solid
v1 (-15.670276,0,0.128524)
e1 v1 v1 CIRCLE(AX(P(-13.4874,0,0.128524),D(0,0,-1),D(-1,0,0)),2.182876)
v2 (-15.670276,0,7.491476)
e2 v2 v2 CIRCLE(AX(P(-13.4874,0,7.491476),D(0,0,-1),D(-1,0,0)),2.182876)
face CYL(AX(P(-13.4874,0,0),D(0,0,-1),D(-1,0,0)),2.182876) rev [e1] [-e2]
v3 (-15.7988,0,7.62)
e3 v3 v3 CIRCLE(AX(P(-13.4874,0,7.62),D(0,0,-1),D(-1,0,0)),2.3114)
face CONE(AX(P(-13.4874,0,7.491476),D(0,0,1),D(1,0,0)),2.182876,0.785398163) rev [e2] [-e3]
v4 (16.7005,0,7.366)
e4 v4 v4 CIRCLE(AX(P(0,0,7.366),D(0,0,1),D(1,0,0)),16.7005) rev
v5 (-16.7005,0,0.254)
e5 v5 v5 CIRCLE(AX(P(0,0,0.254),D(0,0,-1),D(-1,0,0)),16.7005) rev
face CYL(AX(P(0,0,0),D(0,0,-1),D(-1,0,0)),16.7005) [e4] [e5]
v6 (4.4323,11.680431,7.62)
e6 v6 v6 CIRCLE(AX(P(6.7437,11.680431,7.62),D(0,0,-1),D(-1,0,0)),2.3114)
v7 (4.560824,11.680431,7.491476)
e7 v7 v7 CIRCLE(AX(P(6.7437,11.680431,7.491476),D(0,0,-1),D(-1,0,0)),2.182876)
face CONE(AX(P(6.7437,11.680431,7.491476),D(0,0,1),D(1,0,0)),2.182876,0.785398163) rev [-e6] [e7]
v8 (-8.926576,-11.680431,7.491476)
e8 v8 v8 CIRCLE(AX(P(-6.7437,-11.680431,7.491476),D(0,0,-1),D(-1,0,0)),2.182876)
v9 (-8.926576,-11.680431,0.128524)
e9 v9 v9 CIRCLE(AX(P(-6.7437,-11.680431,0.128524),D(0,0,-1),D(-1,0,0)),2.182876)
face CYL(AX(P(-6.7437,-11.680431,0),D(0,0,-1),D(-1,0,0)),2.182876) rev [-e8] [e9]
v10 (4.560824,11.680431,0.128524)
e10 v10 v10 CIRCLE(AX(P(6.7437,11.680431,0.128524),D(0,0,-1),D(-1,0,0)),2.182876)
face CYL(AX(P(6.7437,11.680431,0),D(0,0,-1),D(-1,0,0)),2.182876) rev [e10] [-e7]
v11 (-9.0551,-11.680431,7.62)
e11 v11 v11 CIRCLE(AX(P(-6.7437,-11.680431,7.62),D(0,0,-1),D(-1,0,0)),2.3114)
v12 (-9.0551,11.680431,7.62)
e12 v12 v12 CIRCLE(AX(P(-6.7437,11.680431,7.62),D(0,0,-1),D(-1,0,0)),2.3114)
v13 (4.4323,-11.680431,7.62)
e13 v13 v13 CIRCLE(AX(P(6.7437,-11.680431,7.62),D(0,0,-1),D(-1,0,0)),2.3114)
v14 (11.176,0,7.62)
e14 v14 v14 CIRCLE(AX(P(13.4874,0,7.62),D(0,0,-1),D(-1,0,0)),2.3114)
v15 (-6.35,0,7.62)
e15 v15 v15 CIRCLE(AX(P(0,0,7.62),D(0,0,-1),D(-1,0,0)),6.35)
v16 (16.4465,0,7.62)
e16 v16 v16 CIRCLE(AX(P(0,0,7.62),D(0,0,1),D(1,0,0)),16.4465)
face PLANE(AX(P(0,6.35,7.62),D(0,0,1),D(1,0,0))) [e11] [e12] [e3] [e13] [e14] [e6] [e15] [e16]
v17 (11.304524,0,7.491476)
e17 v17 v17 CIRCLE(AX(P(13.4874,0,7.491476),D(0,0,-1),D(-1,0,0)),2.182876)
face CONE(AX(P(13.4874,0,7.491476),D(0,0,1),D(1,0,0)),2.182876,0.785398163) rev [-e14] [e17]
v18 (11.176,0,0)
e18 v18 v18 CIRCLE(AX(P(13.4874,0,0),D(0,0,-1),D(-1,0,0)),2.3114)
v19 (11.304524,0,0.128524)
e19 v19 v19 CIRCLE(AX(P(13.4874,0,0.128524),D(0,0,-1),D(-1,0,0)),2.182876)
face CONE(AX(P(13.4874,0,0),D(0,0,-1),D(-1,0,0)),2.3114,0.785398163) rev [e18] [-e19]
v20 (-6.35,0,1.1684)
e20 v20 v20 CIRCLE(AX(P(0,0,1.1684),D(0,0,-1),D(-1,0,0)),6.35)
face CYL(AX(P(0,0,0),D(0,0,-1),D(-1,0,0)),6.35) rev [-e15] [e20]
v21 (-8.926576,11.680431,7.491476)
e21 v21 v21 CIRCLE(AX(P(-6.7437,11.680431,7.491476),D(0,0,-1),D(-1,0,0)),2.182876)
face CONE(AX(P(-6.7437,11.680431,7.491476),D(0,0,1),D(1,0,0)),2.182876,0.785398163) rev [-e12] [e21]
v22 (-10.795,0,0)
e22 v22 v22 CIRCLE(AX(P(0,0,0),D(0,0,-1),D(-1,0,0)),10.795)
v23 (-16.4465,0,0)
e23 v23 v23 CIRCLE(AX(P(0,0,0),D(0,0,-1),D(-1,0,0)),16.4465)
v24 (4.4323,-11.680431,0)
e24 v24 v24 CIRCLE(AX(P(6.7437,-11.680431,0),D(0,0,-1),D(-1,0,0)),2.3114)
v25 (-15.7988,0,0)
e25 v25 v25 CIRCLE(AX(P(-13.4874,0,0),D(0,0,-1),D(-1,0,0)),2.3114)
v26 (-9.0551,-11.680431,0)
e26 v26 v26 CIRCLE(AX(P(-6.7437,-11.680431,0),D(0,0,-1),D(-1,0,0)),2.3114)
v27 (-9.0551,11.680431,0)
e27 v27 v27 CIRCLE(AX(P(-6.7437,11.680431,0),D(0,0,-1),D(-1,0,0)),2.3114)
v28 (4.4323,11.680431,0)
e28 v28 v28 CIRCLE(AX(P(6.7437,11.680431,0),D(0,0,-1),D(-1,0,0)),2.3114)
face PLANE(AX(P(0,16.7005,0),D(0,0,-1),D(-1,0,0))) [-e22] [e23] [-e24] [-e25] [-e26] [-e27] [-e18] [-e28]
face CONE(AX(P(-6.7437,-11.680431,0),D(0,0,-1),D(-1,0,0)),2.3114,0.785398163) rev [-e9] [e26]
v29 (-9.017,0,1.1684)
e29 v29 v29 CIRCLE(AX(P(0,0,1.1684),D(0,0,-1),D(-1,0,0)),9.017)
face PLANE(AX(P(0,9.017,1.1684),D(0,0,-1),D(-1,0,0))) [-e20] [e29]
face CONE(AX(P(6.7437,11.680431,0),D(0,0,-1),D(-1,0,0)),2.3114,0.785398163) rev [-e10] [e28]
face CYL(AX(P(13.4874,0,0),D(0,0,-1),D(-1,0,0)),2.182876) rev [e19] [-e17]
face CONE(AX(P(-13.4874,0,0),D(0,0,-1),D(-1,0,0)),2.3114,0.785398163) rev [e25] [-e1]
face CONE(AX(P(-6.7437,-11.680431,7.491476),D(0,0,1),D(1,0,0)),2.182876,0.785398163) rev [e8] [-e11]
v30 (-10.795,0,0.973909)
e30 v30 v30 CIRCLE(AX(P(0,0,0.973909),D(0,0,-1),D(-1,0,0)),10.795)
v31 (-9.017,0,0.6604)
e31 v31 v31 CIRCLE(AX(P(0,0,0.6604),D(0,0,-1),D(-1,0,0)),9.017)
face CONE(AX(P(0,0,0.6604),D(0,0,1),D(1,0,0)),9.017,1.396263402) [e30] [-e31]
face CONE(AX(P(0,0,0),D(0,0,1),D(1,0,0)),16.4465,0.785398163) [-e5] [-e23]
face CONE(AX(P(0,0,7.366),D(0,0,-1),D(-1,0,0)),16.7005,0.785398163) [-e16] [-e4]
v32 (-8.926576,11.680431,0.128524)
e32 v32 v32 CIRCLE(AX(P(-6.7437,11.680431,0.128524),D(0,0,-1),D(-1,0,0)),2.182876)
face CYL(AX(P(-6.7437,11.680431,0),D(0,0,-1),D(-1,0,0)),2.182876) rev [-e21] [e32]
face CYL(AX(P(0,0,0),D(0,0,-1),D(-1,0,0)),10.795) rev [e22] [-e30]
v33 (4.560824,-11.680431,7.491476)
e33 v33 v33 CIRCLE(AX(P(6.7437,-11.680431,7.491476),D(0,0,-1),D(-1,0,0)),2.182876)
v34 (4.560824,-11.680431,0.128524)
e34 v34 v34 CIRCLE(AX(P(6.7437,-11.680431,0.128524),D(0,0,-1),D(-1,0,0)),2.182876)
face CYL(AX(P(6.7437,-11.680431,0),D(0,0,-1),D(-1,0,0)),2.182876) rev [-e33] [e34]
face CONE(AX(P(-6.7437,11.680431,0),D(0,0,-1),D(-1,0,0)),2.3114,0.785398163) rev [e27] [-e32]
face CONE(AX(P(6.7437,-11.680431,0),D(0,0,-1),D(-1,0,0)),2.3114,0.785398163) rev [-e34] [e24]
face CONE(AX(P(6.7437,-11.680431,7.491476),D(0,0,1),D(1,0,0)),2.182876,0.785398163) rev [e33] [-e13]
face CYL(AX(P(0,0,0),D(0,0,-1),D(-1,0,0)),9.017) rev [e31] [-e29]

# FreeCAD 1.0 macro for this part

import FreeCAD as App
import Part
import Sketcher

V = App.Vector
Q = App.Units.Quantity


def edges_at(feature, points):
    """Names of the edges that pass closest to the given points."""
    edges = feature.Shape.Edges
    near = lambda p: min(range(len(edges)), key=lambda i: edges[i].distToShape(Part.Vertex(*p))[0])
    return sorted({f"Edge{near(p) + 1}" for p in points})

doc = App.newDocument("Part")
body = doc.addObject("PartDesign::Body", "Body")

# Sketch on YZ plane
sketch1 = body.newObject("Sketcher::SketchObject", "Sketch")
sketch1.AttachmentSupport = (doc.getObject("YZ_Plane"), [""])
sketch1.MapMode = "FlatFace"
sketch1.addGeometry(Part.LineSegment(V(10.8, 0, 0), V(16.7, 0, 0)), False)
sketch1.addGeometry(Part.LineSegment(V(16.7, 0, 0), V(16.7, 7.6, 0)), False)
sketch1.addGeometry(Part.LineSegment(V(16.7, 7.6, 0), V(6.3, 7.6, 0)), False)
sketch1.addGeometry(Part.LineSegment(V(6.3, 7.6, 0), V(6.3, 1.2, 0)), False)
sketch1.addGeometry(Part.LineSegment(V(6.3, 1.2, 0), V(9, 1.2, 0)), False)
sketch1.addGeometry(Part.LineSegment(V(9, 1.2, 0), V(9, 0.7, 0)), False)
sketch1.addGeometry(Part.LineSegment(V(9, 0.7, 0), V(10.8, 1, 0)), False)
sketch1.addGeometry(Part.LineSegment(V(10.8, 1, 0), V(10.8, 0, 0)), False)
sketch1.addConstraint(Sketcher.Constraint("Coincident", 0, 2, 1, 1))
sketch1.addConstraint(Sketcher.Constraint("Coincident", 1, 2, 2, 1))
sketch1.addConstraint(Sketcher.Constraint("Coincident", 2, 2, 3, 1))
sketch1.addConstraint(Sketcher.Constraint("Coincident", 3, 2, 4, 1))
sketch1.addConstraint(Sketcher.Constraint("Coincident", 4, 2, 5, 1))
sketch1.addConstraint(Sketcher.Constraint("Coincident", 5, 2, 6, 1))
sketch1.addConstraint(Sketcher.Constraint("Coincident", 6, 2, 7, 1))
sketch1.addConstraint(Sketcher.Constraint("Coincident", 7, 2, 0, 1))
sketch1.addConstraint(Sketcher.Constraint("Horizontal", 0))
sketch1.addConstraint(Sketcher.Constraint("Vertical", 1))
sketch1.addConstraint(Sketcher.Constraint("Horizontal", 2))
sketch1.addConstraint(Sketcher.Constraint("Vertical", 3))
sketch1.addConstraint(Sketcher.Constraint("Horizontal", 4))
sketch1.addConstraint(Sketcher.Constraint("Vertical", 5))
sketch1.addConstraint(Sketcher.Constraint("Vertical", 7))
sketch1.addConstraint(Sketcher.Constraint("PointOnObject", 0, 2, -1))
sketch1.addConstraint(Sketcher.Constraint("DistanceY", 1, 1, 1, 2, Q("0.3 in")))
sketch1.addConstraint(Sketcher.Constraint("Angle", 6, Q("10 deg")))
sketch1.addConstraint(Sketcher.Constraint("DistanceY", 5, 2, 5, 1, Q("0.02 in")))
sketch1.addConstraint(Sketcher.Constraint("DistanceX", 4, 1, 4, 2, Q("0.105 in")))
sketch1.addConstraint(Sketcher.Constraint("DistanceY", 3, 2, 3, 1, Q("0.254 in")))
sketch1.addConstraint(Sketcher.Constraint("DistanceX", -1, 1, 2, 2, Q("0.25 in")))
sketch1.addConstraint(Sketcher.Constraint("DistanceX", 4, 2, 6, 2, Q("0.07 in")))
sketch1.addConstraint(Sketcher.Constraint("DistanceX", 0, 1, 0, 2, Q("0.2325 in")))
revolution = body.newObject("PartDesign::Revolution", "Revolution")
revolution.Profile = sketch1
revolution.ReferenceAxis = (sketch1, ["V_Axis"])
revolution.Angle = 360
doc.recompute()

chamfer = body.newObject("PartDesign::Chamfer", "Chamfer")
chamfer.Base = (revolution, edges_at(revolution, [(16.701, 0, 0), (16.701, 0, 7.62)]))
chamfer.Size = Q("0.01 in")

# Sketch on YZ plane
sketch2 = body.newObject("Sketcher::SketchObject", "Sketch001")
sketch2.AttachmentSupport = (doc.getObject("YZ_Plane"), [""])
sketch2.MapMode = "FlatFace"
sketch2.AttachmentOffset = App.Placement(V(0, 0, 0.531 * 25.4), App.Rotation())
sketch2.addGeometry(Part.LineSegment(V(0, 7.62, 0), V(0, 0, 0)), False)
sketch2.addGeometry(Part.LineSegment(V(0, 0, 0), V(2.31, 0, 0)), False)
sketch2.addGeometry(Part.LineSegment(V(2.31, 0, 0), V(2.18, 0.13, 0)), False)
sketch2.addGeometry(Part.LineSegment(V(2.18, 0.13, 0), V(2.18, 7.49, 0)), False)
sketch2.addGeometry(Part.LineSegment(V(2.18, 7.49, 0), V(2.31, 7.62, 0)), False)
sketch2.addGeometry(Part.LineSegment(V(2.31, 7.62, 0), V(0, 7.62, 0)), False)
sketch2.addConstraint(Sketcher.Constraint("Coincident", 0, 2, 1, 1))
sketch2.addConstraint(Sketcher.Constraint("Coincident", 1, 2, 2, 1))
sketch2.addConstraint(Sketcher.Constraint("Coincident", 2, 2, 3, 1))
sketch2.addConstraint(Sketcher.Constraint("Coincident", 3, 2, 4, 1))
sketch2.addConstraint(Sketcher.Constraint("Coincident", 4, 2, 5, 1))
sketch2.addConstraint(Sketcher.Constraint("Coincident", 5, 2, 0, 1))
sketch2.addConstraint(Sketcher.Constraint("Vertical", 0))
sketch2.addConstraint(Sketcher.Constraint("Horizontal", 1))
sketch2.addConstraint(Sketcher.Constraint("Vertical", 3))
sketch2.addConstraint(Sketcher.Constraint("Horizontal", 5))
sketch2.addConstraint(Sketcher.Constraint("Coincident", 0, 2, -1, 1))
sketch2.addConstraint(Sketcher.Constraint("Perpendicular", 2, 4))
sketch2.addConstraint(Sketcher.Constraint("Vertical", 1, 2, 4, 2))
sketch2.addConstraint(Sketcher.Constraint("Equal", 2, 4))
sketch2.addConstraint(Sketcher.Constraint("DistanceY", 0, 2, 0, 1, Q("0.3 in")))
sketch2.addConstraint(Sketcher.Constraint("DistanceX", 1, 1, 1, 2, Q("0.091 in")))
sketch2.addConstraint(Sketcher.Constraint("Distance", 2, 0.18176))
groove = body.newObject("PartDesign::Groove", "Groove")
groove.Profile = sketch2
groove.ReferenceAxis = (sketch2, ["V_Axis"])
groove.Angle = 360
doc.recompute()

polarpattern = body.newObject("PartDesign::PolarPattern", "PolarPattern")
polarpattern.Originals = [groove]
polarpattern.Axis = (doc.getObject("Z_Axis"), [""])
polarpattern.Angle = 360
polarpattern.Occurrences = 6
body.Tip = polarpattern

doc.recompute()
